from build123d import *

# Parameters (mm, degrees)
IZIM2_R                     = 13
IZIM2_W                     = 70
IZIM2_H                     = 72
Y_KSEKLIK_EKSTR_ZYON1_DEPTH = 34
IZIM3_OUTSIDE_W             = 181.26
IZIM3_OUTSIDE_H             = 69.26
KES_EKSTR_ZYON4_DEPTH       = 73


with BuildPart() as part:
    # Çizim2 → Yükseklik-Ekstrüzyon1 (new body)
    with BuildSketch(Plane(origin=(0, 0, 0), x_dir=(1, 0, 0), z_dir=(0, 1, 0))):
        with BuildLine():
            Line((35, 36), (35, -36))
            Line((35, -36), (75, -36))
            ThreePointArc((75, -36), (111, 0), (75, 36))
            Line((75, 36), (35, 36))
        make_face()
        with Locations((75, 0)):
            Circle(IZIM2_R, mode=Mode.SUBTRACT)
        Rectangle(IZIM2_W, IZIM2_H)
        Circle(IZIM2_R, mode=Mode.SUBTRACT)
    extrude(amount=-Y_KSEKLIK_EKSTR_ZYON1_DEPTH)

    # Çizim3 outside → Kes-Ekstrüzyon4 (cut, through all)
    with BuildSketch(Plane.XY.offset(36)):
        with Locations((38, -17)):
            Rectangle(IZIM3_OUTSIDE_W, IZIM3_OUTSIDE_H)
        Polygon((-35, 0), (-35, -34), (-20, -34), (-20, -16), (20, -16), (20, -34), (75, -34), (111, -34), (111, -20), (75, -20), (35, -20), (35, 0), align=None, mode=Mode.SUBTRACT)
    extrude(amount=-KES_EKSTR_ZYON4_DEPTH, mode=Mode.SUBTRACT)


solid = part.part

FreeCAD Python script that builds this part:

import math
import FreeCAD as App
import Part
import Sketcher

V = App.Vector
Q = App.Units.Quantity

doc = App.newDocument("Part")
params = doc.addObject("Spreadsheet::Sheet", "Params")
for row, (alias, value) in enumerate([
    ("sketch1_diameter", "26 mm"),
    ("sketch1_radius", "36 mm"),
    ("sketch1_width", "110 mm"),
    ("pad1_length", "34 mm"),
    ("sketch2_width", "70 mm"),
    ("sketch2_width2", "76 mm"),
    ("sketch2_width3", "91 mm"),
    ("sketch2_height", "34 mm"),
    ("sketch2_height2", "20 mm"),
], start=1):
    params.set(f"A{row}", alias)
    params.set(f"B{row}", "=" + value)
    params.setAlias(f"B{row}", alias)

body = doc.addObject("PartDesign::Body", "Body")

# Sketch on XZ plane
sketch1 = body.newObject("Sketcher::SketchObject", "Sketch")
sketch1.AttachmentSupport = (doc.getObject("XZ_Plane"), [""])
sketch1.MapMode = "FlatFace"
sketch1.addGeometry([
    Part.LineSegment(V(75, -36, 0), V(-35, -36, 0)),  # 0
    Part.LineSegment(V(-35, -36, 0), V(-35, 36, 0)),  # 1
    Part.LineSegment(V(-35, 36, 0), V(75, 36, 0)),  # 2
    Part.ArcOfCircle(Part.Circle(V(75, 0, 0), V(0, 0, 1), 36), math.radians(-90), math.radians(90)),  # 3
    Part.Circle(V(0, 0, 0), V(0, 0, 1), 13),  # 4
    Part.Circle(V(75, 0, 0), V(0, 0, 1), 13),  # 5
], False)
sketch1.addConstraint([
    Sketcher.Constraint("Coincident", 0, 2, 1, 1),
    Sketcher.Constraint("Coincident", 1, 2, 2, 1),
    Sketcher.Constraint("Tangent", 2, 2, 3, 2),
    Sketcher.Constraint("Tangent", 3, 1, 0, 1),
    Sketcher.Constraint("Horizontal", 0),
    Sketcher.Constraint("Vertical", 1),
    Sketcher.Constraint("Horizontal", 2),
    Sketcher.Constraint("Coincident", 4, 3, -1, 1),
    Sketcher.Constraint("Coincident", 5, 3, 3, 3),
    Sketcher.Constraint("Equal", 4, 5),
    Sketcher.Constraint("PointOnObject", 3, 3, -1),
    Sketcher.Constraint("Diameter", 4, Q("26 mm")),
    Sketcher.Constraint("Radius", 3, Q("36 mm")),
    Sketcher.Constraint("DistanceX", 0, 2, 0, 1, Q("110 mm")),
    Sketcher.Constraint("DistanceX", -1, 1, 3, 3, Q("75 mm")),
])
sketch1.setExpression("Constraints[11]", "Params.sketch1_diameter")
sketch1.setExpression("Constraints[12]", "Params.sketch1_radius")
sketch1.setExpression("Constraints[13]", "Params.sketch1_width")
pad1 = body.newObject("PartDesign::Pad", "Pad")
pad1.Profile = sketch1
pad1.setExpression("Length", "Params.pad1_length")

# Sketch on XY plane
sketch2 = body.newObject("Sketcher::SketchObject", "Sketch001")
sketch2.AttachmentSupport = (doc.getObject("XY_Plane"), [""])
sketch2.MapMode = "FlatFace"
sketch2.AttachmentOffset = App.Placement(V(0, 0, 36), App.Rotation())
sketch2.addGeometry([
    Part.LineSegment(V(-52.63, 17.63, 0), V(-52.63, -51.63, 0)),  # 0
    Part.LineSegment(V(-52.63, -51.63, 0), V(128.63, -51.63, 0)),  # 1
    Part.LineSegment(V(128.63, -51.63, 0), V(128.63, 17.63, 0)),  # 2
    Part.LineSegment(V(128.63, 17.63, 0), V(-52.63, 17.63, 0)),  # 3
    Part.LineSegment(V(-35, -34, 0), V(-35, 0, 0)),  # 4
    Part.LineSegment(V(-35, 0, 0), V(35, 0, 0)),  # 5
    Part.LineSegment(V(35, 0, 0), V(35, -20, 0)),  # 6
    Part.LineSegment(V(35, -20, 0), V(111, -20, 0)),  # 7
    Part.LineSegment(V(111, -20, 0), V(111, -34, 0)),  # 8
    Part.LineSegment(V(111, -34, 0), V(20, -34, 0)),  # 9
    Part.LineSegment(V(20, -34, 0), V(20, -16, 0)),  # 10
    Part.LineSegment(V(20, -16, 0), V(-20, -16, 0)),  # 11
    Part.LineSegment(V(-20, -16, 0), V(-20, -34, 0)),  # 12
    Part.LineSegment(V(-20, -34, 0), V(-35, -34, 0)),  # 13
], False)
sketch2.addConstraint([
    Sketcher.Constraint("Coincident", 0, 2, 1, 1),
    Sketcher.Constraint("Coincident", 1, 2, 2, 1),
    Sketcher.Constraint("Coincident", 2, 2, 3, 1),
    Sketcher.Constraint("Coincident", 3, 2, 0, 1),
    Sketcher.Constraint("Coincident", 4, 2, 5, 1),
    Sketcher.Constraint("Coincident", 5, 2, 6, 1),
    Sketcher.Constraint("Coincident", 6, 2, 7, 1),
    Sketcher.Constraint("Coincident", 7, 2, 8, 1),
    Sketcher.Constraint("Coincident", 8, 2, 9, 1),
    Sketcher.Constraint("Coincident", 9, 2, 10, 1),
    Sketcher.Constraint("Coincident", 10, 2, 11, 1),
    Sketcher.Constraint("Coincident", 11, 2, 12, 1),
    Sketcher.Constraint("Coincident", 12, 2, 13, 1),
    Sketcher.Constraint("Coincident", 13, 2, 4, 1),
    Sketcher.Constraint("Vertical", 0),
    Sketcher.Constraint("Horizontal", 1),
    Sketcher.Constraint("Vertical", 2),
    Sketcher.Constraint("Horizontal", 3),
    Sketcher.Constraint("Vertical", 4),
    Sketcher.Constraint("Horizontal", 5),
    Sketcher.Constraint("Vertical", 6),
    Sketcher.Constraint("Horizontal", 7),
    Sketcher.Constraint("Vertical", 8),
    Sketcher.Constraint("Horizontal", 9),
    Sketcher.Constraint("Vertical", 10),
    Sketcher.Constraint("Horizontal", 11),
    Sketcher.Constraint("Vertical", 12),
    Sketcher.Constraint("Horizontal", 13),
    Sketcher.Constraint("Symmetric", 4, 2, 5, 2, -1, 1),
    Sketcher.Constraint("Symmetric", 9, 2, 12, 2, -2),
    Sketcher.Constraint("DistanceX", 5, 1, 5, 2, Q("70 mm")),
    Sketcher.Constraint("DistanceX", 7, 1, 7, 2, Q("76 mm")),
    Sketcher.Constraint("DistanceX", 9, 2, 9, 1, Q("91 mm")),
    Sketcher.Constraint("DistanceY", 4, 1, 4, 2, Q("34 mm")),
    Sketcher.Constraint("DistanceY", 6, 2, 6, 1, Q("20 mm")),
    Sketcher.Constraint("DistanceY", 10, 1, 10, 2, Q("18 mm")),
    Sketcher.Constraint("DistanceX", 1, 1, 1, 2, Q("181.26 mm")),
    Sketcher.Constraint("DistanceY", 0, 2, 0, 1, Q("69.26 mm")),
    Sketcher.Constraint("DistanceX", 0, 2, -1, 1, Q("52.63 mm")),
    Sketcher.Constraint("DistanceY", 0, 2, -1, 1, Q("51.63 mm")),
])
sketch2.setExpression("Constraints[30]", "Params.sketch2_width")
sketch2.setExpression("Constraints[31]", "Params.sketch2_width2")
sketch2.setExpression("Constraints[32]", "Params.sketch2_width3")
sketch2.setExpression("Constraints[33]", "Params.sketch2_height")
sketch2.setExpression("Constraints[34]", "Params.sketch2_height2")
pocket1 = body.newObject("PartDesign::Pocket", "Pocket")
pocket1.Profile = sketch2
pocket1.Type = "ThroughAll"

doc.recompute()
